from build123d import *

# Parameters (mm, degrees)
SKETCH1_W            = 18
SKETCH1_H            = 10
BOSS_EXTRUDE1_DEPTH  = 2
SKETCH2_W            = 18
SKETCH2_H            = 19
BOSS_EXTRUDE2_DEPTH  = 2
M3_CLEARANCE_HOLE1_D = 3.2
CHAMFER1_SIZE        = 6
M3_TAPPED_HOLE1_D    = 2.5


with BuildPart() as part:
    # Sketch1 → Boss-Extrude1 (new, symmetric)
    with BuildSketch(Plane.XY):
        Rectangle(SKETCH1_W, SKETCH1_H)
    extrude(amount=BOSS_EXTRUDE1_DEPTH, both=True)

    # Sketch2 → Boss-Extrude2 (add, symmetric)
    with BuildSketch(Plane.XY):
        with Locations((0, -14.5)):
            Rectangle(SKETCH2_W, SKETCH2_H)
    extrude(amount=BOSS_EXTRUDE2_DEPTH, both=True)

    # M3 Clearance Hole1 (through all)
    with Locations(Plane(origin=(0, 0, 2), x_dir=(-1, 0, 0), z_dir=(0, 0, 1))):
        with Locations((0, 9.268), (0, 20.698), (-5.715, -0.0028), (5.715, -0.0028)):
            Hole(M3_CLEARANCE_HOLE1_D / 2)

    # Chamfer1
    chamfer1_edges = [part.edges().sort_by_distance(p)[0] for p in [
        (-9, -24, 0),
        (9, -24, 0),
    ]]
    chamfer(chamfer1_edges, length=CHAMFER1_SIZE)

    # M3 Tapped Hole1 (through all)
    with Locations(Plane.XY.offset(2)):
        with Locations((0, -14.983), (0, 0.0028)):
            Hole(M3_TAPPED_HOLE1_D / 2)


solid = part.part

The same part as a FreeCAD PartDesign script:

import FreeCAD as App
import Part
import Sketcher
Q = App.Units.Quantity


def edges_at(feature, points):
    """Names of the edges that pass closest to the given points."""
    edges = feature.Shape.Edges
    near = lambda p: min(range(len(edges)), key=lambda i: edges[i].distToShape(Part.Vertex(*p))[0])
    return sorted({f"Edge{near(p) + 1}" for p in points})


def add_polygon(sketch, points):
    """Adds a closed chain of lines whose ends are joined by coincident constraints."""
    first, n = sketch.GeometryCount, len(points)
    for a, b in zip(points, points[1:] + points[:1]):
        sketch.addGeometry(Part.LineSegment(App.Vector(*a, 0), App.Vector(*b, 0)), False)
    for i in range(n):
        sketch.addConstraint(Sketcher.Constraint("Coincident", first + i, 2, first + (i + 1) % n, 1))

doc = App.newDocument("Part")
body = doc.addObject("PartDesign::Body", "Body")

sketch1 = doc.addObject("Sketcher::SketchObject", "Sketch")
body.addObject(sketch1)
sketch1.AttachmentSupport = (doc.XY_Plane, [""])
sketch1.MapMode = "FlatFace"
add_polygon(sketch1, [(-9, 5), (-9, -5), (9, -5), (9, 5)])
sketch1.addConstraint([
    Sketcher.Constraint("Vertical", 0),
    Sketcher.Constraint("Horizontal", 1),
    Sketcher.Constraint("Vertical", 2),
    Sketcher.Constraint("Horizontal", 3),
    Sketcher.Constraint("Symmetric", 0, 2, 2, 2, -1, 1),
    Sketcher.Constraint("DistanceX", 1, 1, 1, 2, Q("18 mm")),
    Sketcher.Constraint("DistanceY", 0, 2, 0, 1, Q("10 mm")),
])
pad1 = doc.addObject("PartDesign::Pad", "Pad")
body.addObject(pad1)
pad1.Profile = sketch1
pad1.Length = 4
pad1.Midplane = True

sketch2 = doc.addObject("Sketcher::SketchObject", "Sketch001")
body.addObject(sketch2)
sketch2.AttachmentSupport = (doc.XY_Plane, [""])
sketch2.MapMode = "FlatFace"
add_polygon(sketch2, [(-9, -5), (-9, -24), (9, -24), (9, -5)])
sketch2.addConstraint([
    Sketcher.Constraint("Vertical", 0),
    Sketcher.Constraint("Horizontal", 1),
    Sketcher.Constraint("Vertical", 2),
    Sketcher.Constraint("Horizontal", 3),
    Sketcher.Constraint("DistanceX", 1, 1, 1, 2, Q("18 mm")),
    Sketcher.Constraint("DistanceY", 0, 2, 0, 1, Q("19 mm")),
    Sketcher.Constraint("DistanceX", 0, 2, -1, 1, Q("9 mm")),
    Sketcher.Constraint("DistanceY", 0, 2, -1, 1, Q("24 mm")),
])
pad2 = doc.addObject("PartDesign::Pad", "Pad001")
body.addObject(pad2)
pad2.Profile = sketch2
pad2.Length = 4
pad2.Midplane = True

sketch3 = doc.addObject("Sketcher::SketchObject", "Sketch002")
body.addObject(sketch3)
sketch3.AttachmentSupport = (doc.XY_Plane, [""])
sketch3.MapMode = "FlatFace"
sketch3.AttachmentOffset = App.Placement(App.Vector(0, 0, 2), App.Rotation())
sketch3.addGeometry([
    Part.Circle(App.Vector(0, -9.268, 0), App.Vector(0, 0, 1), 1.6),
    Part.Circle(App.Vector(0, -20.698, 0), App.Vector(0, 0, 1), 1.6),
    Part.Circle(App.Vector(5.715, 0.0028, 0), App.Vector(0, 0, 1), 1.6),
    Part.Circle(App.Vector(-5.715, 0.0028, 0), App.Vector(0, 0, 1), 1.6),
], False)
sketch3.addConstraint([
    Sketcher.Constraint("Equal", 0, 1),
    Sketcher.Constraint("Equal", 1, 2),
    Sketcher.Constraint("Equal", 2, 3),
    Sketcher.Constraint("Symmetric", 2, 3, 3, 3, -2),
    Sketcher.Constraint("PointOnObject", 0, 3, -2),
    Sketcher.Constraint("PointOnObject", 1, 3, -2),
    Sketcher.Constraint("Diameter", 0, Q("3.2 mm")),
    Sketcher.Constraint("DistanceY", 1, 3, 0, 3, Q("11.43 mm")),
    Sketcher.Constraint("DistanceX", 3, 3, 2, 3, Q("11.43 mm")),
    Sketcher.Constraint("DistanceY", 0, 3, -1, 1, Q("9.268 mm")),
    Sketcher.Constraint("DistanceY", -1, 1, 2, 3, Q("0.0028 mm")),
])
doc.recompute()
hole = doc.addObject("PartDesign::Hole", "Hole")
body.addObject(hole)
hole.Profile = sketch3
hole.ThreadType = "None"
hole.Diameter = 3.2
hole.DepthType = "ThroughAll"
doc.recompute()

chamfer = doc.addObject("PartDesign::Chamfer", "Chamfer")
body.addObject(chamfer)
chamfer.Base = (hole, edges_at(hole, [(-9, -24, 0), (9, -24, 0)]))
chamfer.Size = 6

sketch4 = doc.addObject("Sketcher::SketchObject", "Sketch003")
body.addObject(sketch4)
sketch4.AttachmentSupport = (doc.XY_Plane, [""])
sketch4.MapMode = "FlatFace"
sketch4.AttachmentOffset = App.Placement(App.Vector(0, 0, 2), App.Rotation())
sketch4.addGeometry([
    Part.Circle(App.Vector(0, -14.983, 0), App.Vector(0, 0, 1), 1.25),
    Part.Circle(App.Vector(0, 0.0028, 0), App.Vector(0, 0, 1), 1.25),
], False)
sketch4.addConstraint([
    Sketcher.Constraint("Equal", 0, 1),
    Sketcher.Constraint("PointOnObject", 0, 3, -2),
    Sketcher.Constraint("PointOnObject", 1, 3, -2),
    Sketcher.Constraint("Diameter", 0, Q("2.5 mm")),
    Sketcher.Constraint("DistanceY", 0, 3, -1, 1, Q("14.983 mm")),
    Sketcher.Constraint("DistanceY", -1, 1, 1, 3, Q("0.0028 mm")),
])
doc.recompute()
hole2 = doc.addObject("PartDesign::Hole", "Hole001")
body.addObject(hole2)
hole2.Profile = sketch4
hole2.ThreadType = "None"
hole2.Diameter = 2.5
hole2.DepthType = "ThroughAll"

doc.recompute()
